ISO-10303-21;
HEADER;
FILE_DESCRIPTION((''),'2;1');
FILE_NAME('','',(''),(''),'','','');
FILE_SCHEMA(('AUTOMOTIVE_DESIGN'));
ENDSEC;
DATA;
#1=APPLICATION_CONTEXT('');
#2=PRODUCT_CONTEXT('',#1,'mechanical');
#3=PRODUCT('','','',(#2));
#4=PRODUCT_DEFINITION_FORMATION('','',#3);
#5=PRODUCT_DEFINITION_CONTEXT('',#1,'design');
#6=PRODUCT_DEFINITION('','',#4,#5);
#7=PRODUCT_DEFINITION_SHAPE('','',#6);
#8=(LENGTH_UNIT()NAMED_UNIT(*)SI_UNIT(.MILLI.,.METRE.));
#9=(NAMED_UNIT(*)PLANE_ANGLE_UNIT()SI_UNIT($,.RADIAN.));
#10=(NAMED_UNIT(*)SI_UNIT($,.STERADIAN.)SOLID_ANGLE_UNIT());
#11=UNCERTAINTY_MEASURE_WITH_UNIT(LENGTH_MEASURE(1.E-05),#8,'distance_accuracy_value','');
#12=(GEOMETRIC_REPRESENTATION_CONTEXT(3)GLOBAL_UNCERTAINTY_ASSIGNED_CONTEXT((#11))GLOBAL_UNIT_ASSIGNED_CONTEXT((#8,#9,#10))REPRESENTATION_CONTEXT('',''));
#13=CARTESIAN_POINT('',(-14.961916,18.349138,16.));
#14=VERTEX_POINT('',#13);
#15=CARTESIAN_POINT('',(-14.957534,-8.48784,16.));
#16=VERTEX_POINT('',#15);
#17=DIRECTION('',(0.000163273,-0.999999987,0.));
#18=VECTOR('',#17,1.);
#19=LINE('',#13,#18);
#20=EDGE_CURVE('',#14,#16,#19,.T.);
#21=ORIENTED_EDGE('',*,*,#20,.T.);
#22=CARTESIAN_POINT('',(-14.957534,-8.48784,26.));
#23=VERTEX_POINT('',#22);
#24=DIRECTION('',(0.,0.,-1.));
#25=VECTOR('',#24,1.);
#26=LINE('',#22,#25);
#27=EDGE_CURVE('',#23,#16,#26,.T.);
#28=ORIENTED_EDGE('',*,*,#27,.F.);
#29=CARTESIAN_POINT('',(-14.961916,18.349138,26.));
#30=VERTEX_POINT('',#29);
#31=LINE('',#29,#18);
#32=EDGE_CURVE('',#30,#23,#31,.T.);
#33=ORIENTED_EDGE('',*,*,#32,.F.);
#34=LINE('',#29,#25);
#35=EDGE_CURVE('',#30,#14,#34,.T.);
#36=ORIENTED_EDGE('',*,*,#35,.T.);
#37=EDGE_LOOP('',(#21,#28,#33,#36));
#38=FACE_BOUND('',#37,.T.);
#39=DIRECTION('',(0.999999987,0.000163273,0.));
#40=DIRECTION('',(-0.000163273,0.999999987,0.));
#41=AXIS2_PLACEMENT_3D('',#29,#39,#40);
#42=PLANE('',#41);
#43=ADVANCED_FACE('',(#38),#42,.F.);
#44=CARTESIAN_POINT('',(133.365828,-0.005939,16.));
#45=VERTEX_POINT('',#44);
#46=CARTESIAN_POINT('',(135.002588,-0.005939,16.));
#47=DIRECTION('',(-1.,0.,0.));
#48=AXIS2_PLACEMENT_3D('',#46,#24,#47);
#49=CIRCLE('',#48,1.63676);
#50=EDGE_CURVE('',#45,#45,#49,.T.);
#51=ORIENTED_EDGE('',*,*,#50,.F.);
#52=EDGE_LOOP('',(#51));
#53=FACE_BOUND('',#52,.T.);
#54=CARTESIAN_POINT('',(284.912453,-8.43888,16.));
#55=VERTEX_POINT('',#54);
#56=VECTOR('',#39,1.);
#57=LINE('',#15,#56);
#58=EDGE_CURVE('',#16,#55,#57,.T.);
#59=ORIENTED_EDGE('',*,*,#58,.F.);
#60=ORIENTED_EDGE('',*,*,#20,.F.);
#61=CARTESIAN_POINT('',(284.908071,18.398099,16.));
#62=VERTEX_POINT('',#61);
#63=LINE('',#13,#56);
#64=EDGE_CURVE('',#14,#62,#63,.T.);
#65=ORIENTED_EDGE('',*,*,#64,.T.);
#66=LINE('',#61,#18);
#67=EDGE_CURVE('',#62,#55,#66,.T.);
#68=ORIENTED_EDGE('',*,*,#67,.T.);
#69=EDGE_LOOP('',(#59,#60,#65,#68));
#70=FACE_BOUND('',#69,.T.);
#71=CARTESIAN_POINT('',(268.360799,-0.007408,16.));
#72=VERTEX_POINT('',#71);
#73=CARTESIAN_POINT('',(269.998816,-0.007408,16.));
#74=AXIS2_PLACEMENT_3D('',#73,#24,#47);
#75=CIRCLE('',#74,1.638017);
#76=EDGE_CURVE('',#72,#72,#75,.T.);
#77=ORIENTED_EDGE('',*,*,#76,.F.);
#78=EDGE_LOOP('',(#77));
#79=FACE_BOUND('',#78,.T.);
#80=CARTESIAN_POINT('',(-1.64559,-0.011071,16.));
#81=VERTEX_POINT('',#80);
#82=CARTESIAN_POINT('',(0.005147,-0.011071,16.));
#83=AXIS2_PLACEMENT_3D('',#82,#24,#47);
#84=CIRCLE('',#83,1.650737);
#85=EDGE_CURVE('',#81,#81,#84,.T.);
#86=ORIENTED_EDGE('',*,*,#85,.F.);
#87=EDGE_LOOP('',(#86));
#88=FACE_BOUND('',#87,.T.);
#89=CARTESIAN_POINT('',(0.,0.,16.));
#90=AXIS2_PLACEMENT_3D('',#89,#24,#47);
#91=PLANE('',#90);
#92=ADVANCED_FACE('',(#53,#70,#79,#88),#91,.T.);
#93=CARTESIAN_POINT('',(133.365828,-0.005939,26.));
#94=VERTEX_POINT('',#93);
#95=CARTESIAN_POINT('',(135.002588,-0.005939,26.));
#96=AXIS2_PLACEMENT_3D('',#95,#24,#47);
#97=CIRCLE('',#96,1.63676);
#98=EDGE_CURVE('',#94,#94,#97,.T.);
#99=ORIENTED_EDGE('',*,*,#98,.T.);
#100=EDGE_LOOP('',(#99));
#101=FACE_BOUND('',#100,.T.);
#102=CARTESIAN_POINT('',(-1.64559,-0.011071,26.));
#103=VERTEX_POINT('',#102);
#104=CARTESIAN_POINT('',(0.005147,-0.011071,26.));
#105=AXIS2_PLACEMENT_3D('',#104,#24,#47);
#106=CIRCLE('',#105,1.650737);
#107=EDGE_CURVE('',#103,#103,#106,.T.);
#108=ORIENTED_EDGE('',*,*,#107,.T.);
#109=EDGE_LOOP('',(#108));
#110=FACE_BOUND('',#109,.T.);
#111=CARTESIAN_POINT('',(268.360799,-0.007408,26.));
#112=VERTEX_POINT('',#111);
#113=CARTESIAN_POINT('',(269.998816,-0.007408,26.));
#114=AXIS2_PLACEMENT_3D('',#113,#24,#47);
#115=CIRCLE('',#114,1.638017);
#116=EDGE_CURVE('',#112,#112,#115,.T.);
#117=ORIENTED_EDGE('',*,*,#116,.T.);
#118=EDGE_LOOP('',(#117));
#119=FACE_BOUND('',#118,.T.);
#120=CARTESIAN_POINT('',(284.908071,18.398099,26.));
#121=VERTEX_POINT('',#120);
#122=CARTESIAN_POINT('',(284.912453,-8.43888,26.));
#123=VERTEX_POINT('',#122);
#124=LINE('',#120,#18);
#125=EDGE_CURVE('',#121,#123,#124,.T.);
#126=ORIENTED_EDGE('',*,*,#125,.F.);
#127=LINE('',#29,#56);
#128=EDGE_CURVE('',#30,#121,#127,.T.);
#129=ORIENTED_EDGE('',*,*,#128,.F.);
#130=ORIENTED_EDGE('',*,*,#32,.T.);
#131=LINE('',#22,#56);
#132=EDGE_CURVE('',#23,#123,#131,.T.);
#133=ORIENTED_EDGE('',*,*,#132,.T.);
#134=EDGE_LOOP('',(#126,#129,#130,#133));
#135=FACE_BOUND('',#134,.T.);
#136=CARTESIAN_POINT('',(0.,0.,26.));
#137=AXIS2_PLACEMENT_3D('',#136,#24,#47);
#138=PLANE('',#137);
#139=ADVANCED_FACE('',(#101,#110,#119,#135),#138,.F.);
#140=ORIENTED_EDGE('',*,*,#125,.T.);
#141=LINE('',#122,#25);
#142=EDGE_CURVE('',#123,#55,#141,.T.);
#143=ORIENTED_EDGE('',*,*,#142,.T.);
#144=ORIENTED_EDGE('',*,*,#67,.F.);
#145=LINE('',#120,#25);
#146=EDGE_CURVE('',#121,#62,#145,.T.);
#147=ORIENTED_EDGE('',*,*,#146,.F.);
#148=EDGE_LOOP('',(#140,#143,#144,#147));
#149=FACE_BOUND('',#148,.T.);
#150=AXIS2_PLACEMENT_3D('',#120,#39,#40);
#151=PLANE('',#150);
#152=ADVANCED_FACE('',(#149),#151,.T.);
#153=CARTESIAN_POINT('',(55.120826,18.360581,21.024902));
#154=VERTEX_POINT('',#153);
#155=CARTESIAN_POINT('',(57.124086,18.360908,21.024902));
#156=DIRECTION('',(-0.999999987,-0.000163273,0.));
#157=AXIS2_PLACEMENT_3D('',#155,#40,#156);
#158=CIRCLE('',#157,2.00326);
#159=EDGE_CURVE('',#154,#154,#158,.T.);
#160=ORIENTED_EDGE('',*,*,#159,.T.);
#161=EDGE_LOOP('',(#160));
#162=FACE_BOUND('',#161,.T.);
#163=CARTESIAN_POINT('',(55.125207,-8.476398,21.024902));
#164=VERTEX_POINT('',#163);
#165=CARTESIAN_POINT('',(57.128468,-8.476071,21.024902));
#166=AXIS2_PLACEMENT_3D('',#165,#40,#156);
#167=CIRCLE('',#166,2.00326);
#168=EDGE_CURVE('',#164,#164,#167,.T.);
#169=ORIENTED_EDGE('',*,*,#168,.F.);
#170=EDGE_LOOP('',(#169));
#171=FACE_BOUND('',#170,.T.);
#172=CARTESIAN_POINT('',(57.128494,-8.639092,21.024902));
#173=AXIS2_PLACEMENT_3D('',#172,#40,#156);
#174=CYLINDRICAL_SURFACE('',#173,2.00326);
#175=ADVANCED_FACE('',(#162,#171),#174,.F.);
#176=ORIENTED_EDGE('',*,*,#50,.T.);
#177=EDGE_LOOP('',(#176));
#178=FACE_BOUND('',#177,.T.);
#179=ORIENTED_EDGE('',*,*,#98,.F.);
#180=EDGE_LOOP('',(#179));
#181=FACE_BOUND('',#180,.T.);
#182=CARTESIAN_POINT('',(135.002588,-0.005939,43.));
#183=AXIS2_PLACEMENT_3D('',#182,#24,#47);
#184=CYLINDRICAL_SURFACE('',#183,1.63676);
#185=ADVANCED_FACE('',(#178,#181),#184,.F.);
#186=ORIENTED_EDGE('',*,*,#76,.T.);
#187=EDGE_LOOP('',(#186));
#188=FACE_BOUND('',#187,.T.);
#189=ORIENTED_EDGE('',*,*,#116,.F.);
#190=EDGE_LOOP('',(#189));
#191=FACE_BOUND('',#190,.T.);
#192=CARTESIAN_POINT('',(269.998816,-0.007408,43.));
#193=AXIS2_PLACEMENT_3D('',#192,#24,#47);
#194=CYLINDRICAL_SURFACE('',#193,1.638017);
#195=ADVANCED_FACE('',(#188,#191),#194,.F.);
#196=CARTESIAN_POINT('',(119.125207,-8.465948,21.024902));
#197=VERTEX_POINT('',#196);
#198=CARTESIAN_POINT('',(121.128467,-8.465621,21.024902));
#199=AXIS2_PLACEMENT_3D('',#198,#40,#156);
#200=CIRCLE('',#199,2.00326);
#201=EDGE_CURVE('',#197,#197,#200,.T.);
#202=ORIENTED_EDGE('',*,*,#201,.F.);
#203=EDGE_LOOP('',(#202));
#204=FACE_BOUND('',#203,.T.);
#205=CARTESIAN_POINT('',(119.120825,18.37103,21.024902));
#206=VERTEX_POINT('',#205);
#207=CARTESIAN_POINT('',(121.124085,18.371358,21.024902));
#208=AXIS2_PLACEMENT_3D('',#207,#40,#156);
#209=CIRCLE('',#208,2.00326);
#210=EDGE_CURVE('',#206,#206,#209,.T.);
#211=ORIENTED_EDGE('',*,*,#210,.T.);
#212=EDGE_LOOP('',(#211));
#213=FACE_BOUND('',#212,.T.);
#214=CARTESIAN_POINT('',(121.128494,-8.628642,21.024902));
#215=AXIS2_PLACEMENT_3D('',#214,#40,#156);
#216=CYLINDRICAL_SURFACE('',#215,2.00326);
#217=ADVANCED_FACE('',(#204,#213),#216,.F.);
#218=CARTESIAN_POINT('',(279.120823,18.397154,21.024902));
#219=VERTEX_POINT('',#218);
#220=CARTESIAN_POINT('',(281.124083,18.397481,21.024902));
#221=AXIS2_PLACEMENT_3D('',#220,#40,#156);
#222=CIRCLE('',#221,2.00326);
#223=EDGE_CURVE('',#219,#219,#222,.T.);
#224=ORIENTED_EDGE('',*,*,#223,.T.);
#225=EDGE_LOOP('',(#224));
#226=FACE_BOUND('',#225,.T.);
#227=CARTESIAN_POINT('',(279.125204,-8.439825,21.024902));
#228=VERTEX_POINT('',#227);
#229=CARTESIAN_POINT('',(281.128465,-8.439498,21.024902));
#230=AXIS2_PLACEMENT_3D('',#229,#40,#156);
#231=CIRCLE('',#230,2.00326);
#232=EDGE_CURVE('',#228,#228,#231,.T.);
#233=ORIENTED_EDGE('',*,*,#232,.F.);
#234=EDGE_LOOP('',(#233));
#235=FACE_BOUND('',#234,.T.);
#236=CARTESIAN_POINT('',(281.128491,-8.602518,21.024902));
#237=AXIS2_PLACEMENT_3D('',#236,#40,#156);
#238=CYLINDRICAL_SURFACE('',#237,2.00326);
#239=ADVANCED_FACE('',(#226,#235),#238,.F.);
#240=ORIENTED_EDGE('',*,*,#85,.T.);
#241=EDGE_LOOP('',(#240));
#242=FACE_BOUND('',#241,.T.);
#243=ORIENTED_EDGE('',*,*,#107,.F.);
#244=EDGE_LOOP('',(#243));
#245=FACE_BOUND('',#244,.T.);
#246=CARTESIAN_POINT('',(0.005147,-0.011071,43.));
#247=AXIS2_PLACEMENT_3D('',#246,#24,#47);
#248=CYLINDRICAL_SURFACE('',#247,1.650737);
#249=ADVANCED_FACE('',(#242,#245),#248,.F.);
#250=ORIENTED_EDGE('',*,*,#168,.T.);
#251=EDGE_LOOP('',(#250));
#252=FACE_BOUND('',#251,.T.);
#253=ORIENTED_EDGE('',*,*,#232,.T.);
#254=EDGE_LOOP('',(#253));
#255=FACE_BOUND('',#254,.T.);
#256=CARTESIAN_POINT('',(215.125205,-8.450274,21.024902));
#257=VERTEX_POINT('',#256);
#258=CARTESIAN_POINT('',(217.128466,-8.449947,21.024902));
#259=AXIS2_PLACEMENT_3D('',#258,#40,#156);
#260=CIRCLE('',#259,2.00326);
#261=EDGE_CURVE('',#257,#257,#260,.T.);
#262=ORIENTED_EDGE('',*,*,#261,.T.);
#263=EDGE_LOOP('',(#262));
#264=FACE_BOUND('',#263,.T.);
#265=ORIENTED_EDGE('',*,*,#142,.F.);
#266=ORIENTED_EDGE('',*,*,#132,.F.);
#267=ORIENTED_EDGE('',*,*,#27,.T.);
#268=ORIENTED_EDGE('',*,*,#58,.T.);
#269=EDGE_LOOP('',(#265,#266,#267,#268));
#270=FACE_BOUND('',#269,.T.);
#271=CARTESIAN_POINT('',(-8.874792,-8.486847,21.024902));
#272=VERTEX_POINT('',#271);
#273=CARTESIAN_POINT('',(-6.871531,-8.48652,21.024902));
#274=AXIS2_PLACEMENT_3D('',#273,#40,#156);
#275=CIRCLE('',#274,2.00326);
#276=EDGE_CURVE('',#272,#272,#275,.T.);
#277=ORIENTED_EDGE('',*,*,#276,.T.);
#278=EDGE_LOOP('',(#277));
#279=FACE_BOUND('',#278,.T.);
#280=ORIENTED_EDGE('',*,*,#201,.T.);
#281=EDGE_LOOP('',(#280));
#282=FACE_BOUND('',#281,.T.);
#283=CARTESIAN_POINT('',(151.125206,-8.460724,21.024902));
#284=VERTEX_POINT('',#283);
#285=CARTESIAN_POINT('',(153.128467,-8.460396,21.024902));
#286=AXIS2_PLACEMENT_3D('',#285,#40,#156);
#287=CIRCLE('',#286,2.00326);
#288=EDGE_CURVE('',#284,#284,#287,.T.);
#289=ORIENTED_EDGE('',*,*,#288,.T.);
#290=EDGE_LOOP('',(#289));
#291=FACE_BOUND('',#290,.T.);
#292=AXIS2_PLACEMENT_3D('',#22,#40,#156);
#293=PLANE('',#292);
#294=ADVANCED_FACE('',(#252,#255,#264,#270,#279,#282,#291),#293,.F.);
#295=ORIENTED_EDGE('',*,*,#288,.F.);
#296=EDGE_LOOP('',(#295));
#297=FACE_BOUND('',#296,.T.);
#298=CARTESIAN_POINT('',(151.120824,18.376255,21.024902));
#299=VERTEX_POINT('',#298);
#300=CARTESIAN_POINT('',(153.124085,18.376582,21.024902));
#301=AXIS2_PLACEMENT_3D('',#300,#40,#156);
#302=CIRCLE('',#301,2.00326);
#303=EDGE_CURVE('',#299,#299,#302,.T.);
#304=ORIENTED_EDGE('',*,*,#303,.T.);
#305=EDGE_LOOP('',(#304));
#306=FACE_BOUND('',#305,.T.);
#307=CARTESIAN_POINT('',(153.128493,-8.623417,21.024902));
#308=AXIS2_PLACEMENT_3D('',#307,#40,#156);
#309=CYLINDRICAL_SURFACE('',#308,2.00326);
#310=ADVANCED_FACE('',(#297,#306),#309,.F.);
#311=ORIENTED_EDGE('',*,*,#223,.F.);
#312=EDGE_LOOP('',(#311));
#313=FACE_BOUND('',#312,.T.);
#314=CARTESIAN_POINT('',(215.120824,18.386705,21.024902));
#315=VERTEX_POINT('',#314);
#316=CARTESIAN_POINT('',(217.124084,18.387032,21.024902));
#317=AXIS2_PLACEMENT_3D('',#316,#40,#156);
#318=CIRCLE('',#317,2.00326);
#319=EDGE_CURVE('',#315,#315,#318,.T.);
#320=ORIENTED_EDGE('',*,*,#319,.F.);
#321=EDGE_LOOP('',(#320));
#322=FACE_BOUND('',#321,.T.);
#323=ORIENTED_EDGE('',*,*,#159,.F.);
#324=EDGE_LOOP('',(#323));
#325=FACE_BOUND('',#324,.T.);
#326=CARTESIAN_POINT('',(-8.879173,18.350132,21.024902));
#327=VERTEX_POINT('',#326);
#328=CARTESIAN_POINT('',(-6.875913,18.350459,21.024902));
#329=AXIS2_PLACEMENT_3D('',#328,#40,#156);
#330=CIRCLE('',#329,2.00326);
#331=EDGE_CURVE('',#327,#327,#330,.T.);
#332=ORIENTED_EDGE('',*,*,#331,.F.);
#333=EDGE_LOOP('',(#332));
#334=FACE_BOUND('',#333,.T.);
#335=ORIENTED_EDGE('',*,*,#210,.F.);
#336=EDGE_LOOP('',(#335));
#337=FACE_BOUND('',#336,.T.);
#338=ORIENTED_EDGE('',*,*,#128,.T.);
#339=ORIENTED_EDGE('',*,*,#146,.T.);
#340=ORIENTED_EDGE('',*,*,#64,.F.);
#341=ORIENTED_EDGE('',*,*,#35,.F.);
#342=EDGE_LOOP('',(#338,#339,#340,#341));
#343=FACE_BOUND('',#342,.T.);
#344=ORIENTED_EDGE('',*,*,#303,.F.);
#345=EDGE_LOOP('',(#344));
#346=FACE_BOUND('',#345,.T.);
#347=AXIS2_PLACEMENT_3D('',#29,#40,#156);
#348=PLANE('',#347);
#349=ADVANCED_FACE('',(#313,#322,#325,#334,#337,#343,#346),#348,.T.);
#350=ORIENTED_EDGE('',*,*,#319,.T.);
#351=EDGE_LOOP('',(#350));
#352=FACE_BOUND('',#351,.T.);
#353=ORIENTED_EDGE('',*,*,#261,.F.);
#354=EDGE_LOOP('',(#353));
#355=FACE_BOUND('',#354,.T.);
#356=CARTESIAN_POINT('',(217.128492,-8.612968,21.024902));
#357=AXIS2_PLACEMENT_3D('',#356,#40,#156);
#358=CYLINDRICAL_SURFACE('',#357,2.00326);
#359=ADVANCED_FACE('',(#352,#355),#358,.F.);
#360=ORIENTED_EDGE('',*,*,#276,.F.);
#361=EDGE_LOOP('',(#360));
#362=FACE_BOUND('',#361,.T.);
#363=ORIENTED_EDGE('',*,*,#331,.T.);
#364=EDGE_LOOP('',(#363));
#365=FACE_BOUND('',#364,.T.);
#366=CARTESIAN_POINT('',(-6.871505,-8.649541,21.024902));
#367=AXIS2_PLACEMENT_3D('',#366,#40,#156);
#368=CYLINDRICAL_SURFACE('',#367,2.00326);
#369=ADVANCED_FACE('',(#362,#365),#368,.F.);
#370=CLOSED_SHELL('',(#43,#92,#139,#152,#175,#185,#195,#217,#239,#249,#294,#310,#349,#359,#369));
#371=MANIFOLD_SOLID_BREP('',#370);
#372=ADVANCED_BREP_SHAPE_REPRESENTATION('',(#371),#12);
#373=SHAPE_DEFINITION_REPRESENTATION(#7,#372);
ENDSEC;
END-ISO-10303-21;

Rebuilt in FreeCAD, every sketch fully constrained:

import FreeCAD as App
import Part
import Sketcher
from FreeCAD import Vector
Q = App.Units.Quantity


def add_polygon(sketch, points):
    """Adds a closed chain of lines whose ends are joined by coincident constraints."""
    first, n = sketch.GeometryCount, len(points)
    for a, b in zip(points, points[1:] + points[:1]):
        sketch.addGeometry(Part.LineSegment(App.Vector(*a, 0), App.Vector(*b, 0)), False)
    for i in range(n):
        sketch.addConstraint(Sketcher.Constraint("Coincident", first + i, 2, first + (i + 1) % n, 1))

doc = App.newDocument("Part")
body = doc.addObject("PartDesign::Body", "Body")

sketch1 = body.newObject("Sketcher::SketchObject", "Sketch")
sketch1.AttachmentSupport = (doc.getObject("XY_Plane"), [""])
sketch1.MapMode = "FlatFace"
sketch1.AttachmentOffset = App.Placement(Vector(0, 0, 16), App.Rotation())
add_polygon(sketch1, [(-15, 18), (-15, -8), (285, -8), (285, 18)])
sketch1.addConstraint([
    Sketcher.Constraint("Perpendicular", 0, 1),
    Sketcher.Constraint("Perpendicular", 1, 2),
    Sketcher.Constraint("Perpendicular", 2, 3),
    Sketcher.Constraint("DistanceY", -1, 1, 2, 2, Q("18.398099 mm")),
    Sketcher.Constraint("Distance", 0, Q("26.836979 mm")),
    Sketcher.Constraint("Distance", 1, Q("299.869991 mm")),
    Sketcher.Constraint("DistanceY", 0, 2, -1, 1, Q("8.48784 mm")),
    Sketcher.Constraint("DistanceX", -1, 1, 2, 2, Q("284.908071 mm")),
])
pad1 = body.newObject("PartDesign::Pad", "Pad")
pad1.Profile = sketch1
pad1.Length = 10

sketch2 = body.newObject("Sketcher::SketchObject", "Sketch001")
sketch2.AttachmentSupport = (doc.getObject("XY_Plane"), [""])
sketch2.MapMode = "FlatFace"
sketch2.AttachmentOffset = App.Placement(Vector(0, 0, 16), App.Rotation())
sketch2.addGeometry(Part.Circle(Vector(135, 0, 0), Vector(0, 0, 1), 1.6), False)
sketch2.addConstraint([
    Sketcher.Constraint("Diameter", 0, Q("3.27352 mm")),
    Sketcher.Constraint("DistanceY", 0, 3, -1, 1, Q("0.005939 mm")),
    Sketcher.Constraint("DistanceX", -1, 1, 0, 3, Q("135.002588 mm")),
])
pocket1 = body.newObject("PartDesign::Pocket", "Pocket")
pocket1.Profile = sketch2
pocket1.Length = 27
pocket1.Reversed = True

sketch3 = body.newObject("Sketcher::SketchObject", "Sketch002")
sketch3.AttachmentSupport = (doc.getObject("XY_Plane"), [""])
sketch3.MapMode = "FlatFace"
sketch3.AttachmentOffset = App.Placement(Vector(0, 0, 16), App.Rotation())
sketch3.addGeometry(Part.Circle(Vector(270, 0, 0), Vector(0, 0, 1), 1.6), False)
sketch3.addConstraint([
    Sketcher.Constraint("Diameter", 0, Q("3.276033 mm")),
    Sketcher.Constraint("DistanceY", 0, 3, -1, 1, Q("0.007408 mm")),
    Sketcher.Constraint("DistanceX", -1, 1, 0, 3, Q("269.998816 mm")),
])
pocket2 = body.newObject("PartDesign::Pocket", "Pocket001")
pocket2.Profile = sketch3
pocket2.Length = 27
pocket2.Reversed = True

sketch4 = body.newObject("Sketcher::SketchObject", "Sketch003")
sketch4.AttachmentSupport = (doc.getObject("XY_Plane"), [""])
sketch4.MapMode = "FlatFace"
sketch4.AttachmentOffset = App.Placement(Vector(0, 0, 16), App.Rotation())
sketch4.addGeometry(Part.Circle(Vector(0, 0, 0), Vector(0, 0, 1), 1.7), False)
sketch4.addConstraint([
    Sketcher.Constraint("Diameter", 0, Q("3.301474 mm")),
    Sketcher.Constraint("DistanceY", 0, 3, -1, 1, Q("0.011071 mm")),
    Sketcher.Constraint("DistanceX", -1, 1, 0, 3, Q("0.005147 mm")),
])
pocket3 = body.newObject("PartDesign::Pocket", "Pocket002")
pocket3.Profile = sketch4
pocket3.Length = 27
pocket3.Reversed = True

sketch5 = body.newObject("Sketcher::SketchObject", "Sketch004")
sketch5.Placement = App.Placement(Vector(-0.002996, 18.351581, 0), App.Rotation(Vector(0.999999987, 0.000163273, 0), Vector(0, 0, -1.000000001), Vector(-0.000163273, 0.999999987, 0), "ZXY"))
sketch5.addGeometry([
    Part.Circle(Vector(-6.9, -21, 0), Vector(0, 0, 1), 2),
    Part.Circle(Vector(57.1, -21, 0), Vector(0, 0, 1), 2),
    Part.Circle(Vector(121.1, -21, 0), Vector(0, 0, 1), 2),
    Part.Circle(Vector(153.1, -21, 0), Vector(0, 0, 1), 2),
    Part.Circle(Vector(217.1, -21, 0), Vector(0, 0, 1), 2),
    Part.Circle(Vector(281.1, -21, 0), Vector(0, 0, 1), 2),
], False)
sketch5.addConstraint([
    Sketcher.Constraint("Equal", 0, 1),
    Sketcher.Constraint("Equal", 1, 2),
    Sketcher.Constraint("Equal", 2, 3),
    Sketcher.Constraint("Equal", 3, 4),
    Sketcher.Constraint("Equal", 4, 5),
    Sketcher.Constraint("Horizontal", 0, 3, 1, 3),
    Sketcher.Constraint("Horizontal", 1, 3, 2, 3),
    Sketcher.Constraint("Horizontal", 2, 3, 3, 3),
    Sketcher.Constraint("Horizontal", 3, 3, 4, 3),
    Sketcher.Constraint("Horizontal", 4, 3, 5, 3),
    Sketcher.Constraint("DistanceX", 0, 3, 1, 3, Q("64 mm")),
    Sketcher.Constraint("DistanceX", 1, 3, 2, 3, Q("64 mm")),
    Sketcher.Constraint("DistanceX", 2, 3, 3, 3, Q("32 mm")),
    Sketcher.Constraint("DistanceX", 3, 3, 4, 3, Q("64 mm")),
    Sketcher.Constraint("DistanceX", 4, 3, 5, 3, Q("64 mm")),
    Sketcher.Constraint("Diameter", 0, Q("4.006521 mm")),
    Sketcher.Constraint("DistanceX", 0, 3, -1, 1, Q("6.872917 mm")),
    Sketcher.Constraint("DistanceY", 0, 3, -1, 1, Q("21.024902 mm")),
])
pocket4 = body.newObject("PartDesign::Pocket", "Pocket003")
pocket4.Profile = sketch5
pocket4.Length = 27

doc.recompute()
